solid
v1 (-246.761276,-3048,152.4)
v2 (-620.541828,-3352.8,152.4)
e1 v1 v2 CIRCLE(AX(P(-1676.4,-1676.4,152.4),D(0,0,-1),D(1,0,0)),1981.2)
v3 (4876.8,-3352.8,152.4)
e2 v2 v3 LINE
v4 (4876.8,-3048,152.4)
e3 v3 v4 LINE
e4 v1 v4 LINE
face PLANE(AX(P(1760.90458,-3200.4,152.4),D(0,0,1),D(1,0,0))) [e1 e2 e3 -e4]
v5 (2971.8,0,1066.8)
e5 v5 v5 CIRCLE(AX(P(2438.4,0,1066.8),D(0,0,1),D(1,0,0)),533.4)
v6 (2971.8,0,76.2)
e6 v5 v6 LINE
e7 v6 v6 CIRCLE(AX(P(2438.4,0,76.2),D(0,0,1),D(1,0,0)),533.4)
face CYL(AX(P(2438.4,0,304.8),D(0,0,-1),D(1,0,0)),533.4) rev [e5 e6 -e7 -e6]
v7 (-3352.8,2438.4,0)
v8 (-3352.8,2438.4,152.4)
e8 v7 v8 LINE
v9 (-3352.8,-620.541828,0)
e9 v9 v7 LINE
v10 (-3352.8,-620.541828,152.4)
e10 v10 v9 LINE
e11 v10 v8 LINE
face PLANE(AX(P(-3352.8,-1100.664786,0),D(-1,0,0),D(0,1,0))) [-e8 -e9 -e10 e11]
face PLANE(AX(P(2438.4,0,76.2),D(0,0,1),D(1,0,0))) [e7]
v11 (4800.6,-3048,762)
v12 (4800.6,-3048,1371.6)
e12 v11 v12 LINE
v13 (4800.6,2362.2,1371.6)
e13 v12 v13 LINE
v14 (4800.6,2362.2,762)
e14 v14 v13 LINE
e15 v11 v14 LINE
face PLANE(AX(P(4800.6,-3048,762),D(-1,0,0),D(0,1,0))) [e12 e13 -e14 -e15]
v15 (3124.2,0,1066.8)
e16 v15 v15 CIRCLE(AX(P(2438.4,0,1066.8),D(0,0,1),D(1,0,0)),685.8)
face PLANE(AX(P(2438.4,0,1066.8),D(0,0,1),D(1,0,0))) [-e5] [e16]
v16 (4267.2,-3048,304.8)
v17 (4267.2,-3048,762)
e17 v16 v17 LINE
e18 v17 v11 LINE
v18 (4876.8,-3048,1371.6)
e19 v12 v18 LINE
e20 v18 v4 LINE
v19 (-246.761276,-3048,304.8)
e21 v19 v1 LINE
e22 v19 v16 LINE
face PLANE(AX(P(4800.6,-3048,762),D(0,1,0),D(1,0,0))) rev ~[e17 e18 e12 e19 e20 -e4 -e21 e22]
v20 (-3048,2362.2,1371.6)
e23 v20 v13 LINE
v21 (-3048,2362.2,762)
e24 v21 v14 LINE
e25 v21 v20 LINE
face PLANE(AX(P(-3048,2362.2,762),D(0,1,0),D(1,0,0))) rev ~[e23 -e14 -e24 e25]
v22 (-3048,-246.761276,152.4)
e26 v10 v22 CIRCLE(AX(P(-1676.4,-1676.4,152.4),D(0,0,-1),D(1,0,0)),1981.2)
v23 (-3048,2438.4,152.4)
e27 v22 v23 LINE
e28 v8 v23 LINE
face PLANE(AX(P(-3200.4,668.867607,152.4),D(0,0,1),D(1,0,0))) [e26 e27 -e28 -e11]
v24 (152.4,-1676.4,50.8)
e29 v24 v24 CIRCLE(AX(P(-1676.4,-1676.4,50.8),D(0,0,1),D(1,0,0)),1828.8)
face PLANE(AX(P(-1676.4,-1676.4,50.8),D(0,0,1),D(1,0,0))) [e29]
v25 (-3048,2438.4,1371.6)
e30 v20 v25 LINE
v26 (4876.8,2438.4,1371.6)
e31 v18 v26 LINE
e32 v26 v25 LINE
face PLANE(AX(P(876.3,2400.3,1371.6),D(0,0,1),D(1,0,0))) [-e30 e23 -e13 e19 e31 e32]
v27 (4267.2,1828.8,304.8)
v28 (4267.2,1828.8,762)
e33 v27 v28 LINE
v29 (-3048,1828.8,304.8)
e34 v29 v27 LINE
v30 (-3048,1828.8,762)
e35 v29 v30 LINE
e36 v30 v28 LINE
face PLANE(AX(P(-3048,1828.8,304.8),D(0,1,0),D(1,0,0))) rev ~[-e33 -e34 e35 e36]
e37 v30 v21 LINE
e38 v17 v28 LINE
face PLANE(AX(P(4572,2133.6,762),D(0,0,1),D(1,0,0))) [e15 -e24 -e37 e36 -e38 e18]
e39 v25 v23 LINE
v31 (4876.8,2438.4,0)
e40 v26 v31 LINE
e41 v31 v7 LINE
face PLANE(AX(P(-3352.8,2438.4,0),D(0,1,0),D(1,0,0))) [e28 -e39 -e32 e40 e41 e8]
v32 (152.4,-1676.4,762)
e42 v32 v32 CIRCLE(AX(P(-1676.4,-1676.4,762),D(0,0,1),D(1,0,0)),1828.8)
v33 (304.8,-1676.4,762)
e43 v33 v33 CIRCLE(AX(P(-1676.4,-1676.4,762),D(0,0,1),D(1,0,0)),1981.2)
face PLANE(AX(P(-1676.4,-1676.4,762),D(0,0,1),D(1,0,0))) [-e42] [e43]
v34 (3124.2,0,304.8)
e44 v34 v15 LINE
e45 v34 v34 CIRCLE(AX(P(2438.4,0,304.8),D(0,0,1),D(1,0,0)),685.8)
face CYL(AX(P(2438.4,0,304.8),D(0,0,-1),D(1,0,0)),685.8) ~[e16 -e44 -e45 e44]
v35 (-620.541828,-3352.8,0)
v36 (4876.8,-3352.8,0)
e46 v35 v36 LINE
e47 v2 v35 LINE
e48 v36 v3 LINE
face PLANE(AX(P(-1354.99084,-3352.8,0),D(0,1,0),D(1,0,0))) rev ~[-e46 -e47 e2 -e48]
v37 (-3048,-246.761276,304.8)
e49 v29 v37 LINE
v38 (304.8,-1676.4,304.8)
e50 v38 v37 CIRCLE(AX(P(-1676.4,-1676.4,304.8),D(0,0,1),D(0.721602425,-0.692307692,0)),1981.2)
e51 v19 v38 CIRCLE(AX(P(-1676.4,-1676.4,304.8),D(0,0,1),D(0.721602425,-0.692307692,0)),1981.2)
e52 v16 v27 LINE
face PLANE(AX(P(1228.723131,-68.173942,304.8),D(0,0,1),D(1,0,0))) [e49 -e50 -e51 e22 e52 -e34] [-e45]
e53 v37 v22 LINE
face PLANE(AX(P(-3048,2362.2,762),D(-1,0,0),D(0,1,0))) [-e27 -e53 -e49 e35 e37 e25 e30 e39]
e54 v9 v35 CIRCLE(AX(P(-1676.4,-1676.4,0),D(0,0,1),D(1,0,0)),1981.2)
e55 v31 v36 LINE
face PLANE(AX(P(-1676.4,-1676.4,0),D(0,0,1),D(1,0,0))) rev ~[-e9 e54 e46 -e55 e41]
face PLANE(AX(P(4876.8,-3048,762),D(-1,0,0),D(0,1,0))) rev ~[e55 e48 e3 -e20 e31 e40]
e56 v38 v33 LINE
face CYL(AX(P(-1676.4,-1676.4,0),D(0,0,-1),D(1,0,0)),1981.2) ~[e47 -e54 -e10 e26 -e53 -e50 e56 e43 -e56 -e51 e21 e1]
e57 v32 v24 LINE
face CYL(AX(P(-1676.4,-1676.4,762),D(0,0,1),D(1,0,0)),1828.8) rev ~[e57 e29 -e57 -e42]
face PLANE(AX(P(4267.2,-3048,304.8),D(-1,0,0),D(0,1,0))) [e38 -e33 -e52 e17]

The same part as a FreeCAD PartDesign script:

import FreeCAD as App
import Part
import Sketcher
Q = App.Units.Quantity


def add_polygon(sketch, points):
    """Adds a closed chain of lines whose ends are joined by coincident constraints."""
    first, n = sketch.GeometryCount, len(points)
    for a, b in zip(points, points[1:] + points[:1]):
        sketch.addGeometry(Part.LineSegment(App.Vector(*a, 0), App.Vector(*b, 0)), False)
    for i in range(n):
        sketch.addConstraint(Sketcher.Constraint("Coincident", first + i, 2, first + (i + 1) % n, 1))

doc = App.newDocument("Part")
body = doc.addObject("PartDesign::Body", "Body")

sketch1 = body.newObject("Sketcher::SketchObject", "Sketch")
sketch1.AttachmentSupport = (doc.getObject("XY_Plane"), [""])
sketch1.MapMode = "FlatFace"
add_polygon(sketch1, [(4877, 2438), (-3048, 2438), (-3048, -305), (-305, -3048), (4877, -3048)])
sketch1.addConstraint([
    Sketcher.Constraint("Horizontal", 0),
    Sketcher.Constraint("Vertical", 1),
    Sketcher.Constraint("Horizontal", 3),
    Sketcher.Constraint("Vertical", 4),
    Sketcher.Constraint("DistanceX", 0, 2, 0, 1, Q("312 in")),
    Sketcher.Constraint("DistanceX", 3, 1, 3, 2, Q("204 in")),
    Sketcher.Constraint("DistanceY", 1, 2, 1, 1, Q("108 in")),
    Sketcher.Constraint("DistanceY", 4, 1, 4, 2, Q("216 in")),
    Sketcher.Constraint("DistanceX", 0, 2, -1, 1, Q("120 in")),
    Sketcher.Constraint("DistanceY", -1, 1, 0, 2, Q("96 in")),
])
pad1 = body.newObject("PartDesign::Pad", "Pad")
pad1.Profile = sketch1
pad1.Length = Q("12 in")

sketch2 = body.newObject("Sketcher::SketchObject", "Sketch001")
sketch2.AttachmentSupport = (doc.getObject("XY_Plane"), [""])
sketch2.MapMode = "FlatFace"
sketch2.AttachmentOffset = App.Placement(App.Vector(0, 0, 12 * 25.4), App.Rotation())
add_polygon(sketch2, [(4877, 2438), (-3048, 2438), (-3048, 1829), (4267, 1829), (4267, -3048), (4877, -3048)])
sketch2.addConstraint([
    Sketcher.Constraint("Horizontal", 0),
    Sketcher.Constraint("Vertical", 1),
    Sketcher.Constraint("Horizontal", 2),
    Sketcher.Constraint("Vertical", 3),
    Sketcher.Constraint("Horizontal", 4),
    Sketcher.Constraint("Vertical", 5),
    Sketcher.Constraint("Equal", 4, 1),
    Sketcher.Constraint("DistanceX", 0, 2, 0, 1, Q("312 in")),
    Sketcher.Constraint("DistanceX", 2, 1, 2, 2, Q("288 in")),
    Sketcher.Constraint("DistanceY", 3, 2, 3, 1, Q("192 in")),
    Sketcher.Constraint("DistanceX", 0, 2, -1, 1, Q("120 in")),
    Sketcher.Constraint("DistanceY", -1, 1, 0, 2, Q("96 in")),
])
pad2 = body.newObject("PartDesign::Pad", "Pad001")
pad2.Profile = sketch2
pad2.Length = Q("18 in")

sketch3 = body.newObject("Sketcher::SketchObject", "Sketch002")
sketch3.AttachmentSupport = (doc.getObject("XY_Plane"), [""])
sketch3.MapMode = "FlatFace"
sketch3.AttachmentOffset = App.Placement(App.Vector(0, 0, 30 * 25.4), App.Rotation())
add_polygon(sketch3, [(-3048, 2438), (-3048, 2362), (4801, 2362), (4801, -3048), (4877, -3048), (4877, 2438)])
sketch3.addConstraint([
    Sketcher.Constraint("Vertical", 0),
    Sketcher.Constraint("Horizontal", 1),
    Sketcher.Constraint("Vertical", 2),
    Sketcher.Constraint("Horizontal", 3),
    Sketcher.Constraint("Vertical", 4),
    Sketcher.Constraint("Horizontal", 5),
    Sketcher.Constraint("Equal", 3, 0),
    Sketcher.Constraint("DistanceX", 1, 1, 1, 2, Q("309 in")),
    Sketcher.Constraint("DistanceX", 3, 1, 3, 2, Q("3 in")),
    Sketcher.Constraint("DistanceY", 2, 2, 2, 1, Q("213 in")),
    Sketcher.Constraint("DistanceX", 0, 2, -1, 1, Q("120 in")),
    Sketcher.Constraint("DistanceY", -1, 1, 0, 2, Q("93 in")),
])
pad3 = body.newObject("PartDesign::Pad", "Pad002")
pad3.Profile = sketch3
pad3.Length = Q("24 in")

sketch4 = body.newObject("Sketcher::SketchObject", "Sketch003")
sketch4.AttachmentSupport = (doc.getObject("XY_Plane"), [""])
sketch4.MapMode = "FlatFace"
add_polygon(sketch4, [(-3353, 2438), (-3353, -1101), (-3048, -1101), (-3048, 2438)])
add_polygon(sketch4, [(-1355, -3048), (-1355, -3353), (4877, -3353), (4877, -3048)])
sketch4.addConstraint([
    Sketcher.Constraint("Vertical", 0),
    Sketcher.Constraint("Horizontal", 1),
    Sketcher.Constraint("Vertical", 2),
    Sketcher.Constraint("Horizontal", 3),
    Sketcher.Constraint("Vertical", 4),
    Sketcher.Constraint("Horizontal", 5),
    Sketcher.Constraint("Vertical", 6),
    Sketcher.Constraint("Horizontal", 7),
    Sketcher.Constraint("Equal", 3, 4),
    Sketcher.Constraint("DistanceX", 1, 1, 1, 2, Q("12 in")),
    Sketcher.Constraint("DistanceX", 0, 2, -1, 1, Q("132 in")),
    Sketcher.Constraint("DistanceY", -1, 1, 2, 2, Q("96 in")),
    Sketcher.Constraint("DistanceY", 4, 2, -1, 1, Q("132 in")),
    Sketcher.Constraint("DistanceX", -1, 1, 5, 2, Q("192 in")),
    Sketcher.Constraint("DistanceX", 5, 1, 5, 2, 6231.79084),
    Sketcher.Constraint("DistanceY", 0, 2, 0, 1, 3539.064786),
])
pad4 = body.newObject("PartDesign::Pad", "Pad003")
pad4.Profile = sketch4
pad4.Length = Q("6 in")

sketch5 = body.newObject("Sketcher::SketchObject", "Sketch004")
sketch5.AttachmentSupport = (doc.getObject("XY_Plane"), [""])
sketch5.MapMode = "FlatFace"
sketch5.addGeometry(Part.Circle(App.Vector(-1676, -1676, 0), App.Vector(0, 0, 1), 1981), False)
sketch5.addConstraint([
    Sketcher.Constraint("Diameter", 0, Q("156 in")),
    Sketcher.Constraint("DistanceX", 0, 3, -1, 1, Q("66 in")),
    Sketcher.Constraint("DistanceY", 0, 3, -1, 1, Q("66 in")),
])
pocket1 = body.newObject("PartDesign::Pocket", "Pocket")
pocket1.Profile = sketch5
pocket1.Type = "ThroughAll"
pocket1.Reversed = True

sketch6 = body.newObject("Sketcher::SketchObject", "Sketch005")
sketch6.AttachmentSupport = (doc.getObject("XY_Plane"), [""])
sketch6.MapMode = "FlatFace"
sketch6.addGeometry(Part.Circle(App.Vector(-1676, -1676, 0), App.Vector(0, 0, 1), 1981), False)
sketch6.addConstraint([
    Sketcher.Constraint("Diameter", 0, Q("156 in")),
    Sketcher.Constraint("DistanceX", 0, 3, -1, 1, Q("66 in")),
    Sketcher.Constraint("DistanceY", 0, 3, -1, 1, Q("66 in")),
])
pad5 = body.newObject("PartDesign::Pad", "Pad004")
pad5.Profile = sketch6
pad5.Length = Q("30 in")

sketch7 = body.newObject("Sketcher::SketchObject", "Sketch006")
sketch7.AttachmentSupport = (doc.getObject("XY_Plane"), [""])
sketch7.MapMode = "FlatFace"
sketch7.AttachmentOffset = App.Placement(App.Vector(0, 0, 30 * 25.4), App.Rotation())
sketch7.addGeometry(Part.Circle(App.Vector(-1676, -1676, 0), App.Vector(0, 0, 1), 1829), False)
sketch7.addConstraint([
    Sketcher.Constraint("Diameter", 0, Q("144 in")),
    Sketcher.Constraint("DistanceX", 0, 3, -1, 1, Q("66 in")),
    Sketcher.Constraint("DistanceY", 0, 3, -1, 1, Q("66 in")),
])
pocket2 = body.newObject("PartDesign::Pocket", "Pocket001")
pocket2.Profile = sketch7
pocket2.Length = Q("28 in")

sketch8 = body.newObject("Sketcher::SketchObject", "Sketch007")
sketch8.AttachmentSupport = (doc.getObject("XY_Plane"), [""])
sketch8.MapMode = "FlatFace"
sketch8.AttachmentOffset = App.Placement(App.Vector(0, 0, 12 * 25.4), App.Rotation())
sketch8.addGeometry([
    Part.Circle(App.Vector(2438, 0, 0), App.Vector(0, 0, 1), 686),
    Part.Circle(App.Vector(2438, 0, 0), App.Vector(0, 0, 1), 533),
], False)
sketch8.addConstraint([
    Sketcher.Constraint("Coincident", 1, 3, 0, 3),
    Sketcher.Constraint("PointOnObject", 0, 3, -1),
    Sketcher.Constraint("Diameter", 0, Q("54 in")),
    Sketcher.Constraint("Diameter", 1, Q("42 in")),
    Sketcher.Constraint("DistanceX", -1, 1, 0, 3, Q("96 in")),
])
pad6 = body.newObject("PartDesign::Pad", "Pad005")
pad6.Profile = sketch8
pad6.Length = Q("30 in")

sketch9 = body.newObject("Sketcher::SketchObject", "Sketch008")
sketch9.AttachmentSupport = (doc.getObject("XY_Plane"), [""])
sketch9.MapMode = "FlatFace"
sketch9.AttachmentOffset = App.Placement(App.Vector(0, 0, 12 * 25.4), App.Rotation())
sketch9.addGeometry(Part.Circle(App.Vector(2438, 0, 0), App.Vector(0, 0, 1), 533), False)
sketch9.addConstraint([
    Sketcher.Constraint("PointOnObject", 0, 3, -1),
    Sketcher.Constraint("Diameter", 0, Q("42 in")),
    Sketcher.Constraint("DistanceX", -1, 1, 0, 3, Q("96 in")),
])
pocket3 = body.newObject("PartDesign::Pocket", "Pocket002")
pocket3.Profile = sketch9
pocket3.Length = Q("9 in")

doc.recompute()
